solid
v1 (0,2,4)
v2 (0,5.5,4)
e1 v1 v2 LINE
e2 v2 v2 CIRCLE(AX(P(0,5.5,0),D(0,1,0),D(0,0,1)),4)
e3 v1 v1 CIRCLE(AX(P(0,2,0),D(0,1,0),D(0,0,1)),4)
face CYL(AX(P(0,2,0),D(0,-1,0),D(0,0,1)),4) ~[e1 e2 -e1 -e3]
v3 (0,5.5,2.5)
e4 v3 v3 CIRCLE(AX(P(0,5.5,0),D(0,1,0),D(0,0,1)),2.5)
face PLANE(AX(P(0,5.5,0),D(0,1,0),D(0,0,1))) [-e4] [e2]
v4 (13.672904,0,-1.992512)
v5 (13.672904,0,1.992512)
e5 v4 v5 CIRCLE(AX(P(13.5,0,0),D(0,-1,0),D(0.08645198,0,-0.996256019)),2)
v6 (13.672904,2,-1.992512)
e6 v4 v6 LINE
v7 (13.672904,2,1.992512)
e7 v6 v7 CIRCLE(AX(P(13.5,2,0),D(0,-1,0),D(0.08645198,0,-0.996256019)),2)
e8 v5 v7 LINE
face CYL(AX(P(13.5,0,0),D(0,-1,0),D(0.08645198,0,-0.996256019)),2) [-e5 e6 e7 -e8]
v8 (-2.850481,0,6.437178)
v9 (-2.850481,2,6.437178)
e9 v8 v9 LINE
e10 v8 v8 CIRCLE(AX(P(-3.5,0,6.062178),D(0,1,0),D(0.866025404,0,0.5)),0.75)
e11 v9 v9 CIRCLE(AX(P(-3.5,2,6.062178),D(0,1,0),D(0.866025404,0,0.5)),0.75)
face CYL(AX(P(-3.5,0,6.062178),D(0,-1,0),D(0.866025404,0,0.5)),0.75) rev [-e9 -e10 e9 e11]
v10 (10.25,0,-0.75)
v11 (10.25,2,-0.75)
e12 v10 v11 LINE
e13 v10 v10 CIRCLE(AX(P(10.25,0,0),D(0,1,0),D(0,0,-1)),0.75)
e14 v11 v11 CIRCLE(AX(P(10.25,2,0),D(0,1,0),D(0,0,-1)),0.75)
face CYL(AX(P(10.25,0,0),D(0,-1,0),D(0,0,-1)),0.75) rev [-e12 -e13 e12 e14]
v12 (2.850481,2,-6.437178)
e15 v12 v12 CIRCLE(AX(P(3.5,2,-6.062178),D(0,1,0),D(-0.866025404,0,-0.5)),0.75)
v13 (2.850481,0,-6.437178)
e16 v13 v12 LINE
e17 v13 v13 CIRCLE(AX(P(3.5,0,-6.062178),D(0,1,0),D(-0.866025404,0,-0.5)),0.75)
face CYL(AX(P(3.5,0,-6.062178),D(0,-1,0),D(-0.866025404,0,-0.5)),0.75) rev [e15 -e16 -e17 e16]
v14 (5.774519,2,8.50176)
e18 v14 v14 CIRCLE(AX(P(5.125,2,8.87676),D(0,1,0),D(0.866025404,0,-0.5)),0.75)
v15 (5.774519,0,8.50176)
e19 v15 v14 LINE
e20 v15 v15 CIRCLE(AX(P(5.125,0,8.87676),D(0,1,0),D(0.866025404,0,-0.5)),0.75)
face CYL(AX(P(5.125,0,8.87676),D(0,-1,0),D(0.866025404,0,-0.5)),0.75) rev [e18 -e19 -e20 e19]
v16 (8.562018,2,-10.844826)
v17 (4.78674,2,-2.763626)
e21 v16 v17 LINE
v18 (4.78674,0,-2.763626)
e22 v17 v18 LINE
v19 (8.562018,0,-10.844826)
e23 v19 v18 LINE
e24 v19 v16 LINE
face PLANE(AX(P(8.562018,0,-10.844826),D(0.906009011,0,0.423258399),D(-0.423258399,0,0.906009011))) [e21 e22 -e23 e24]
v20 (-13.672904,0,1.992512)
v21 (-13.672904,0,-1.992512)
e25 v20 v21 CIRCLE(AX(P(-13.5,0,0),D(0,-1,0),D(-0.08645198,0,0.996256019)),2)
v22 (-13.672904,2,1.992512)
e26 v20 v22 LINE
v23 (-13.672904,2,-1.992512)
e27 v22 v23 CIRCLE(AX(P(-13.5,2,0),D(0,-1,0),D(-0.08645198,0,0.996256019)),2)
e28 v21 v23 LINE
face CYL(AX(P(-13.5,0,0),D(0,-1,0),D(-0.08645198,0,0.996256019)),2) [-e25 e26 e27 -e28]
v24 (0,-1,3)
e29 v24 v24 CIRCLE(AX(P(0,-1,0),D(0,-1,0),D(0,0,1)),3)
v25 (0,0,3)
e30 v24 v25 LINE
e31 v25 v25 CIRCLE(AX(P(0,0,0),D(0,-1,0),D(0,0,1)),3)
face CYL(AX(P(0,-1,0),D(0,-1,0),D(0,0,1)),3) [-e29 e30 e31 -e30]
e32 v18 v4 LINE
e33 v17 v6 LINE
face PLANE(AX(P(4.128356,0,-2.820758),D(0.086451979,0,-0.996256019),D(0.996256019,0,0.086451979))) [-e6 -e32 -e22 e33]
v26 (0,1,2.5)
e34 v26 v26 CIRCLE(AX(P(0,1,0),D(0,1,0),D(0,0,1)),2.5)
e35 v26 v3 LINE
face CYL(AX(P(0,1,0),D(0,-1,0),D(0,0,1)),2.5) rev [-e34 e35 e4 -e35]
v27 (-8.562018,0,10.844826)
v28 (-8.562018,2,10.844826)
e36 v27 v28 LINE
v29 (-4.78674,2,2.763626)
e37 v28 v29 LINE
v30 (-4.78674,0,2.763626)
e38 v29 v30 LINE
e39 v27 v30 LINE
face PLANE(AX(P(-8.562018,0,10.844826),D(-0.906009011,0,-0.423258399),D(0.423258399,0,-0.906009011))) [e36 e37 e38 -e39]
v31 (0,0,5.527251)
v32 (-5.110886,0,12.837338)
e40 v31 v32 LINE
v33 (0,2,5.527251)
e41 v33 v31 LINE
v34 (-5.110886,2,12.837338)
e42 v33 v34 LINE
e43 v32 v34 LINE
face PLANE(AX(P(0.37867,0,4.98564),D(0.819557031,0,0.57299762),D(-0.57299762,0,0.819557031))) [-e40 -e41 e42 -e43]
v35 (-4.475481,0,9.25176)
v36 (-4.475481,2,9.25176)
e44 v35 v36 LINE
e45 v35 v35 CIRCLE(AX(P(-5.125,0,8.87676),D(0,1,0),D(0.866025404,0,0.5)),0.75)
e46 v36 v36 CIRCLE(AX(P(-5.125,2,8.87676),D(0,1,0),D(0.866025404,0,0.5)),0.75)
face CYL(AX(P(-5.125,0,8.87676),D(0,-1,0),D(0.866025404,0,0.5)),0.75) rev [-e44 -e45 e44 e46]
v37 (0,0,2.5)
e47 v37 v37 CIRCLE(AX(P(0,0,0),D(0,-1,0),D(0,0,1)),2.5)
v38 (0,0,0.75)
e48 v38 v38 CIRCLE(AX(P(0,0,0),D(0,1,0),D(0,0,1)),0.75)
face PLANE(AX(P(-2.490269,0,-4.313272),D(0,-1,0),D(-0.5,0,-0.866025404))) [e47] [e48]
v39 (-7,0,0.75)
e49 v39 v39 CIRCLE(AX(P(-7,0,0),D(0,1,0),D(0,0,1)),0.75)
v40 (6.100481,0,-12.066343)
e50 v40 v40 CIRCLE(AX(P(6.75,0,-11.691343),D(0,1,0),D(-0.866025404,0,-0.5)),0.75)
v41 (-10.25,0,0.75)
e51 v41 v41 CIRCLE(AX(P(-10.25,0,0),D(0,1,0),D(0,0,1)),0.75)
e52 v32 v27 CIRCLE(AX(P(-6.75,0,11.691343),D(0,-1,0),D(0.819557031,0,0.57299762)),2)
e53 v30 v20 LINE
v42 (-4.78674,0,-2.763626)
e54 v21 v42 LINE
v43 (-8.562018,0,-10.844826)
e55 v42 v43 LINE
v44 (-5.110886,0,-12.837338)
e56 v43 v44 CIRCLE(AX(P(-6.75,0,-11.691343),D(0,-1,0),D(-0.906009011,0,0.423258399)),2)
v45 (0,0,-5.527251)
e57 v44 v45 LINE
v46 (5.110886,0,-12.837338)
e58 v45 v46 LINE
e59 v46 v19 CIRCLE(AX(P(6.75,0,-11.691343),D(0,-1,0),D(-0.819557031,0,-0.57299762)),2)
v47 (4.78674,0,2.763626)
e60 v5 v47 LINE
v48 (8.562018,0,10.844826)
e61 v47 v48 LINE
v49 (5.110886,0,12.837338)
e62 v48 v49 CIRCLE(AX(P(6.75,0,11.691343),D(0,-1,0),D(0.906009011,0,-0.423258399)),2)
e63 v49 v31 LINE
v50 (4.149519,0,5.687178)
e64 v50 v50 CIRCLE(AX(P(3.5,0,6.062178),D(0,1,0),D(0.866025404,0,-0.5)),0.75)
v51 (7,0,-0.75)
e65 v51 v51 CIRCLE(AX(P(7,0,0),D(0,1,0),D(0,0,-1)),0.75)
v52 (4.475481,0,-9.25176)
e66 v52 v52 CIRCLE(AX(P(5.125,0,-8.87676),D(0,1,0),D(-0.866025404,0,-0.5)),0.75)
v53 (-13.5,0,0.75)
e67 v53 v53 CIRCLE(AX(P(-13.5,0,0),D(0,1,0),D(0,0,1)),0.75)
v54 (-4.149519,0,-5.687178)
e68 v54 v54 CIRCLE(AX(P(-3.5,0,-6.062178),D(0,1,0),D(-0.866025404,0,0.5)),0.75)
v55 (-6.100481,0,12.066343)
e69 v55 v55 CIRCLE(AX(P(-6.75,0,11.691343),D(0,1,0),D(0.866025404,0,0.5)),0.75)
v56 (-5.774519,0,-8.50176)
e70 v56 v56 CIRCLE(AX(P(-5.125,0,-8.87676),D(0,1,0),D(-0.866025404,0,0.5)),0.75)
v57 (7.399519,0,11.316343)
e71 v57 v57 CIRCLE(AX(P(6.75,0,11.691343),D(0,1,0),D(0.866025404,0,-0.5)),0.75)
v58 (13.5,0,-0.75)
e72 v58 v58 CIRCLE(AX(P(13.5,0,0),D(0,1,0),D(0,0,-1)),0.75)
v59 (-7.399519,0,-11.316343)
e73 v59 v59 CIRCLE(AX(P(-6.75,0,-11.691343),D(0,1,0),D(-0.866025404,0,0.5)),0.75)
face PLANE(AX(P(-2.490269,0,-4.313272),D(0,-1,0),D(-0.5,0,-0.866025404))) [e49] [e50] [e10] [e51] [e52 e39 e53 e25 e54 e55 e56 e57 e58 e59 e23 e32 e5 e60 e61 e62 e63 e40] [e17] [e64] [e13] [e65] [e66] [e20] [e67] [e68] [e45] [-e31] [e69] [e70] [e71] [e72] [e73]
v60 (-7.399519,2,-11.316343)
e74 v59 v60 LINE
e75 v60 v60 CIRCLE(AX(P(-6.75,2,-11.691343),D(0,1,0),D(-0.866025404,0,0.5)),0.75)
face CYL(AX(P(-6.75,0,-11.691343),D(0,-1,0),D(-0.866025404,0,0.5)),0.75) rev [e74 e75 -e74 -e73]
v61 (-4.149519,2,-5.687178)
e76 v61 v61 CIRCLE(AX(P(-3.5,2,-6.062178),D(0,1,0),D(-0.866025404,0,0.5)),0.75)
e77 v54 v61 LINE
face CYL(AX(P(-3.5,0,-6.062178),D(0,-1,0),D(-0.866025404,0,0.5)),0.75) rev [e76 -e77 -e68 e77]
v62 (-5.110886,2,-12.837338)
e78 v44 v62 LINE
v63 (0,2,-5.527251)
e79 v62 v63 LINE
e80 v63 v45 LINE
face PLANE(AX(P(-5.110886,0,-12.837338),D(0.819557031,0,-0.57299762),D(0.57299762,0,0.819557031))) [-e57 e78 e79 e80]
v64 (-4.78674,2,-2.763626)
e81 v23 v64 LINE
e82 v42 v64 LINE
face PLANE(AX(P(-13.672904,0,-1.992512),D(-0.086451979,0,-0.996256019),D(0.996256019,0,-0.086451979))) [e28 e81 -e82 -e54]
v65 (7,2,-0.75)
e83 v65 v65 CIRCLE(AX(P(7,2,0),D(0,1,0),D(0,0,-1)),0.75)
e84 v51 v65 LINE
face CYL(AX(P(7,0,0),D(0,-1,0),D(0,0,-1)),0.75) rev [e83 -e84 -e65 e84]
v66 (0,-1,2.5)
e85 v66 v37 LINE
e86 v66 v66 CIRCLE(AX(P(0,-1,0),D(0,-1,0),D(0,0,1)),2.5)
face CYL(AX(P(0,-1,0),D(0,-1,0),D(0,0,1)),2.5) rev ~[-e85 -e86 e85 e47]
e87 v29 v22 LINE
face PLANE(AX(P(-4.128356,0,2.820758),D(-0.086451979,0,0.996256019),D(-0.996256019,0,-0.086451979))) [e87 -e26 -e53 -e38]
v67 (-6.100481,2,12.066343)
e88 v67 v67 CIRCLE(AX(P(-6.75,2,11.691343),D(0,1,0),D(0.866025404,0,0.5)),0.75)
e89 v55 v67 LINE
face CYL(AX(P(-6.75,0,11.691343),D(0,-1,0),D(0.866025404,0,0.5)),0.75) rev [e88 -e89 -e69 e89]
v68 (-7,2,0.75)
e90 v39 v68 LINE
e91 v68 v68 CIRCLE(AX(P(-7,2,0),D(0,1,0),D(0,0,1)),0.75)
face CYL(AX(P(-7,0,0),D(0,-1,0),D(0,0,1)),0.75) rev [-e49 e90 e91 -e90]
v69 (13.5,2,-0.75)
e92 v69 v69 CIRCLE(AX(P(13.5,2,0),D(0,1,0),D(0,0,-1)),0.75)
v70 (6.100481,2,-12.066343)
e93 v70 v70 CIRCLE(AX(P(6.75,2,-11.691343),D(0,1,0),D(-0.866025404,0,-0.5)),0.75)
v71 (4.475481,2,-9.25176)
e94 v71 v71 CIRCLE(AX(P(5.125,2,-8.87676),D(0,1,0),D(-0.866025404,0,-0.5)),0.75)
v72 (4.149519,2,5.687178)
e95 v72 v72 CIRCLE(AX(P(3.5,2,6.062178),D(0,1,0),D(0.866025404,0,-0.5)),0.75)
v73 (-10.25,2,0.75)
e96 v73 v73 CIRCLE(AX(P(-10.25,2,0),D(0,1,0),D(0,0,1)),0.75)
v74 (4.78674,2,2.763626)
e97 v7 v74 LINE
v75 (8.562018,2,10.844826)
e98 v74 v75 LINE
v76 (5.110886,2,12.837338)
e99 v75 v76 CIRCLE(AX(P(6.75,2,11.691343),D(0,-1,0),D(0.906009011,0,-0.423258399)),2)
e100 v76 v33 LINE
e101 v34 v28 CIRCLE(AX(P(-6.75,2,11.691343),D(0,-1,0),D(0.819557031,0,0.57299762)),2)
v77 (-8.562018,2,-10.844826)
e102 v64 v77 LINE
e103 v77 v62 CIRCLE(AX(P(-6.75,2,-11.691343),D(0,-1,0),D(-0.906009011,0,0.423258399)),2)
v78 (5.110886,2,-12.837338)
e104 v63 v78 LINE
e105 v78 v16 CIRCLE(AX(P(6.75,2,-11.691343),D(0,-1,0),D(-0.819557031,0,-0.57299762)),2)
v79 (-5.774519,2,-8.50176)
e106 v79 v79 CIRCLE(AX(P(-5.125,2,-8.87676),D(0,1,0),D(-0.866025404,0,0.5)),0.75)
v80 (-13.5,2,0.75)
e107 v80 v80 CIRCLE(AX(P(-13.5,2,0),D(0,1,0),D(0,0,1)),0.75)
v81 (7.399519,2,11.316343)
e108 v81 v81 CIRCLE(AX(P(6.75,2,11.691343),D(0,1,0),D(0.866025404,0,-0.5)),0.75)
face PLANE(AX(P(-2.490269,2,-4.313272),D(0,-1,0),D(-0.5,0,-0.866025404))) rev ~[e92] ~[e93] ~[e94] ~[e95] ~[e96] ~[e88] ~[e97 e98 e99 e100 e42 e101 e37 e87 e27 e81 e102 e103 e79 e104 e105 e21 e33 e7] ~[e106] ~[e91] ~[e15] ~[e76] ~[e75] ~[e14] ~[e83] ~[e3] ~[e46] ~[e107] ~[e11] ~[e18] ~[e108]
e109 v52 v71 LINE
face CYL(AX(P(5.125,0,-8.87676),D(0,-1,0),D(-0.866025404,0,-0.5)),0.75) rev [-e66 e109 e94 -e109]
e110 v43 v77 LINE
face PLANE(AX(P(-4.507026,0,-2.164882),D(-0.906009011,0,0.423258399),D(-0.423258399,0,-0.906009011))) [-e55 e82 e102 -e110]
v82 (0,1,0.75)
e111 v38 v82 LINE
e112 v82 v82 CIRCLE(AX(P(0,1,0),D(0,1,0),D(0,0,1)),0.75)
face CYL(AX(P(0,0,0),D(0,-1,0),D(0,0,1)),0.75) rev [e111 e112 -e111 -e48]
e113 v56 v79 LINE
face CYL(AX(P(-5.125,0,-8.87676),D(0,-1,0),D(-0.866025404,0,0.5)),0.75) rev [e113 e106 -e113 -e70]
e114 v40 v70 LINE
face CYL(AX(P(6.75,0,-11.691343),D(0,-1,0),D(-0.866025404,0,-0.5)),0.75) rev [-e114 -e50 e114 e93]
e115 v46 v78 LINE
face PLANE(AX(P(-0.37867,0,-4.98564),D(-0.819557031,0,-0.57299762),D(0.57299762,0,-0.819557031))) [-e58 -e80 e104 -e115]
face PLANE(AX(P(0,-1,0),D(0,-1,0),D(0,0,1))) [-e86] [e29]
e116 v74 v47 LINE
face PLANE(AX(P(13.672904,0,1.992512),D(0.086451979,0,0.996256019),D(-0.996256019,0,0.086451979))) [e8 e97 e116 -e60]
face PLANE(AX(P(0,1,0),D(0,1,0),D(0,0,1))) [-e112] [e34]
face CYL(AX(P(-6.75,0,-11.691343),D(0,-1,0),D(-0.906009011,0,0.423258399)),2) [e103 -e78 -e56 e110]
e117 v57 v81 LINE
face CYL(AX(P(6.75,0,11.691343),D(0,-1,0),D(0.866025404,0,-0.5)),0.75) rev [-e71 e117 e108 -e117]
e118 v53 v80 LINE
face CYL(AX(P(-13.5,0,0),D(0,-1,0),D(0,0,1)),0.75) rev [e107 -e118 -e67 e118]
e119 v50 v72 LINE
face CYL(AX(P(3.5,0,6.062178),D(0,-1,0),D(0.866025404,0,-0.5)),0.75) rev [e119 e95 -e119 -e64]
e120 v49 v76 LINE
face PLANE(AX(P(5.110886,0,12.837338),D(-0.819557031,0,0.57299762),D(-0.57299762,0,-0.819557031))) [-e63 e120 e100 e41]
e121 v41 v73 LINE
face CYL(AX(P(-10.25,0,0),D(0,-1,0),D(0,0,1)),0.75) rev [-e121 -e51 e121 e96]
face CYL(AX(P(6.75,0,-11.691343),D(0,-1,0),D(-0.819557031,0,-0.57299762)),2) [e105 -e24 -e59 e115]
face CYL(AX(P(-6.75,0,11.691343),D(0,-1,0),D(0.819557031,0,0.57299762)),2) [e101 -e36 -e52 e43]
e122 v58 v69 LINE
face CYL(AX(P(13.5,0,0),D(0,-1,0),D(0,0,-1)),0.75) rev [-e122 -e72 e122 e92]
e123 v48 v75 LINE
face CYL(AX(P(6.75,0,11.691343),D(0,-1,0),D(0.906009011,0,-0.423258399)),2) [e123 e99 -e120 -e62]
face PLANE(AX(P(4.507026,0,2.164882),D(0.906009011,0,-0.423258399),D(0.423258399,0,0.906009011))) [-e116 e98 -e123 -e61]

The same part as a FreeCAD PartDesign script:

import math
import FreeCAD as App
import Part
import Sketcher
Q = App.Units.Quantity

doc = App.newDocument("Part")
body = doc.addObject("PartDesign::Body", "Body")

sketch1 = doc.addObject("Sketcher::SketchObject", "Sketch")
body.addObject(sketch1)
sketch1.AttachmentSupport = (doc.XZ_Plane, [""])
sketch1.MapMode = "FlatFace"
sketch1.addGeometry([
    Part.LineSegment(App.Vector(-4.1, -2.8, 0), App.Vector(-13.7, -2, 0)),
    Part.ArcOfCircle(Part.Circle(App.Vector(-13.5, 0, 0), App.Vector(0, 0, 1), 2), math.radians(95), math.radians(265)),
    Part.LineSegment(App.Vector(-13.7, 2, 0), App.Vector(-4.1, 2.8, 0)),
    Part.ArcOfCircle(Part.Circle(App.Vector(0, 0, 0), App.Vector(0, 0, 1), 5), math.radians(-146), math.radians(146)),
    Part.Circle(App.Vector(0, 0, 0), App.Vector(0, 0, 1), 0.8),
    Part.Circle(App.Vector(-7, 0, 0), App.Vector(0, 0, 1), 0.8),
    Part.Circle(App.Vector(-10.2, 0, 0), App.Vector(0, 0, 1), 0.8),
    Part.Circle(App.Vector(-13.5, 0, 0), App.Vector(0, 0, 1), 0.8),
], False)
sketch1.addConstraint([
    Sketcher.Constraint("Tangent", 0, 2, 1, 2),
    Sketcher.Constraint("Tangent", 1, 1, 2, 1),
    Sketcher.Constraint("Coincident", 2, 2, 3, 2),
    Sketcher.Constraint("Coincident", 3, 1, 0, 1),
    Sketcher.Constraint("Coincident", 3, 3, -1, 1),
    Sketcher.Constraint("Coincident", 4, 3, -1, 1),
    Sketcher.Constraint("Coincident", 7, 3, 1, 3),
    Sketcher.Constraint("Equal", 4, 5),
    Sketcher.Constraint("Equal", 5, 6),
    Sketcher.Constraint("Equal", 6, 7),
    Sketcher.Constraint("Symmetric", 0, 2, 1, 1, -1),
    Sketcher.Constraint("PointOnObject", 5, 3, -1),
    Sketcher.Constraint("PointOnObject", 6, 3, -1),
    Sketcher.Constraint("Radius", 1, Q("2 mm")),
    Sketcher.Constraint("Radius", 3, Q("5 mm")),
    Sketcher.Constraint("Diameter", 4, Q("1.5 mm")),
    Sketcher.Constraint("DistanceX", 5, 3, -1, 1, Q("7 mm")),
    Sketcher.Constraint("DistanceX", 1, 3, -1, 1, Q("13.5 mm")),
    Sketcher.Constraint("DistanceX", 6, 3, -1, 1, Q("10.25 mm")),
    Sketcher.Constraint("DistanceY", -1, 1, 2, 2, Q("2.820758 mm")),
])
pad1 = doc.addObject("PartDesign::Pad", "Pad")
body.addObject(pad1)
pad1.Profile = sketch1
pad1.Length = 2
pad1.Reversed = True
doc.recompute()

polarpattern = doc.addObject("PartDesign::PolarPattern", "PolarPattern")
body.addObject(polarpattern)
polarpattern.Originals = [pad1]
polarpattern.Axis = (doc.Y_Axis, [""])
polarpattern.Angle = 360
polarpattern.Occurrences = 6
body.Tip = polarpattern

sketch2 = doc.addObject("Sketcher::SketchObject", "Sketch001")
body.addObject(sketch2)
sketch2.AttachmentSupport = (doc.XZ_Plane, [""])
sketch2.MapMode = "FlatFace"
sketch2.AttachmentOffset = App.Placement(App.Vector(0, 0, -2), App.Rotation())
sketch2.addGeometry([
    Part.Circle(App.Vector(0, 0, 0), App.Vector(0, 0, 1), 4),
    Part.Circle(App.Vector(0, 0, 0), App.Vector(0, 0, 1), 2.5),
], False)
sketch2.addConstraint([
    Sketcher.Constraint("Coincident", 0, 3, -1, 1),
    Sketcher.Constraint("Coincident", 1, 3, -1, 1),
    Sketcher.Constraint("Diameter", 0, Q("8 mm")),
    Sketcher.Constraint("Diameter", 1, Q("5 mm")),
])
pad2 = doc.addObject("PartDesign::Pad", "Pad001")
body.addObject(pad2)
pad2.Profile = sketch2
pad2.Length = 3.5
pad2.Reversed = True

sketch3 = doc.addObject("Sketcher::SketchObject", "Sketch002")
body.addObject(sketch3)
sketch3.AttachmentSupport = (doc.XZ_Plane, [""])
sketch3.MapMode = "FlatFace"
sketch3.AttachmentOffset = App.Placement(App.Vector(0, 0, -1), App.Rotation())
sketch3.addGeometry([
    Part.Circle(App.Vector(0, 0, 0), App.Vector(0, 0, 1), 2.5),
    Part.Circle(App.Vector(0, 0, 0), App.Vector(0, 0, 1), 0.8),
], False)
sketch3.addConstraint([
    Sketcher.Constraint("Coincident", 0, 3, -1, 1),
    Sketcher.Constraint("Coincident", 1, 3, -1, 1),
    Sketcher.Constraint("Diameter", 0, Q("5 mm")),
    Sketcher.Constraint("Diameter", 1, Q("1.5 mm")),
])
pocket1 = doc.addObject("PartDesign::Pocket", "Pocket")
body.addObject(pocket1)
pocket1.Profile = sketch3
pocket1.Length = 1

sketch4 = doc.addObject("Sketcher::SketchObject", "Sketch003")
body.addObject(sketch4)
sketch4.AttachmentSupport = (doc.XZ_Plane, [""])
sketch4.MapMode = "FlatFace"
sketch4.AttachmentOffset = App.Placement(App.Vector(0, 0, 1), App.Rotation())
sketch4.addGeometry([
    Part.Circle(App.Vector(0, 0, 0), App.Vector(0, 0, 1), 3),
    Part.Circle(App.Vector(0, 0, 0), App.Vector(0, 0, 1), 2.5),
], False)
sketch4.addConstraint([
    Sketcher.Constraint("Coincident", 0, 3, -1, 1),
    Sketcher.Constraint("Coincident", 1, 3, -1, 1),
    Sketcher.Constraint("Diameter", 0, Q("6 mm")),
    Sketcher.Constraint("Diameter", 1, Q("5 mm")),
])
pad3 = doc.addObject("PartDesign::Pad", "Pad002")
body.addObject(pad3)
pad3.Profile = sketch4
pad3.Length = 1
pad3.Reversed = True

doc.recompute()
